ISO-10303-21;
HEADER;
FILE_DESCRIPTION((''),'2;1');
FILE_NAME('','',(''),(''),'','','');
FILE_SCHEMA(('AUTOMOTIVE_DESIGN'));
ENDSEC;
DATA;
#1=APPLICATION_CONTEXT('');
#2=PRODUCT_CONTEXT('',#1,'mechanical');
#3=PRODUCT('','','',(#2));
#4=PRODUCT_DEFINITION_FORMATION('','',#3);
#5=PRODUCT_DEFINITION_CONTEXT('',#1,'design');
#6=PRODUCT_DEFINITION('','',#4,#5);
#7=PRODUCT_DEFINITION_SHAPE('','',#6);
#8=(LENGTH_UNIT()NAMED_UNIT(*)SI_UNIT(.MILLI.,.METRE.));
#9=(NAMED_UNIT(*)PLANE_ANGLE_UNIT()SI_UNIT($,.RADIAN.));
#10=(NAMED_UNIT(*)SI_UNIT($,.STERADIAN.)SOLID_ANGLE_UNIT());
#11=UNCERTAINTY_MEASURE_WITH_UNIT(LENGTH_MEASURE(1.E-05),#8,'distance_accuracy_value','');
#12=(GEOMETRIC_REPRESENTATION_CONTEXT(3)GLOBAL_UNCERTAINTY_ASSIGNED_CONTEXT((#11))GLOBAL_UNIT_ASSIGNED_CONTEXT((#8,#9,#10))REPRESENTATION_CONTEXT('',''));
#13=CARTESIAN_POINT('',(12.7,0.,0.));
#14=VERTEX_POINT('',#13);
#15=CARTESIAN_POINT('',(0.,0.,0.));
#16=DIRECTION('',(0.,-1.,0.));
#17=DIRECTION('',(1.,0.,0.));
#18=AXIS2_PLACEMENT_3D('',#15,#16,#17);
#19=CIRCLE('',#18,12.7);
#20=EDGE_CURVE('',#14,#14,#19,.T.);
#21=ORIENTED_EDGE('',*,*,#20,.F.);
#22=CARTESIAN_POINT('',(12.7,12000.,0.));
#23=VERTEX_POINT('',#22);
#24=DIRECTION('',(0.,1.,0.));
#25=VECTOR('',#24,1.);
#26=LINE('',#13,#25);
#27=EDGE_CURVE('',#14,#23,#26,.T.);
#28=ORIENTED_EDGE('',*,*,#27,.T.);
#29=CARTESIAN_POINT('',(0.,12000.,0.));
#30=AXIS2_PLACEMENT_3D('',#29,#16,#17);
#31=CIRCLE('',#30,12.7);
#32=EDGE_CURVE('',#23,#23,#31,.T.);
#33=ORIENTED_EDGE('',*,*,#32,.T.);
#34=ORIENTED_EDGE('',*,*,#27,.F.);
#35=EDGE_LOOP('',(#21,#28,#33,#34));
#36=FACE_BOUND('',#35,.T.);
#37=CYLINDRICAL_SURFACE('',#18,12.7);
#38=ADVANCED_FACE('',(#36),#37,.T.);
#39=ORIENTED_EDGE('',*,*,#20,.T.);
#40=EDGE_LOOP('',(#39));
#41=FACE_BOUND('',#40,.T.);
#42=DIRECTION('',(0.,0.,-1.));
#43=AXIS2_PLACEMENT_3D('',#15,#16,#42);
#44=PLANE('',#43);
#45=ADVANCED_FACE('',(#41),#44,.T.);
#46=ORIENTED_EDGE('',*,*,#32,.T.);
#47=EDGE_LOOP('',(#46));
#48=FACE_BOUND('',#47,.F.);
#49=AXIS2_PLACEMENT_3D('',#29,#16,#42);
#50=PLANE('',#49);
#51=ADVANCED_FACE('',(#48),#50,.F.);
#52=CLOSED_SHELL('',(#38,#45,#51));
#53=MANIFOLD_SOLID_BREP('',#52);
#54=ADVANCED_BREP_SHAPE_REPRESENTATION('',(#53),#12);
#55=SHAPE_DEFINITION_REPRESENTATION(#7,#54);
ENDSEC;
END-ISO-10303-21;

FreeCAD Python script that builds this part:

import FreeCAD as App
import Part
import Sketcher

V = App.Vector
Q = App.Units.Quantity

doc = App.newDocument("Part")
body = doc.addObject("PartDesign::Body", "Body")

# Sketch on XZ plane
sketch1 = body.newObject("Sketcher::SketchObject", "Sketch")
sketch1.AttachmentSupport = (doc.getObject("XZ_Plane"), [""])
sketch1.MapMode = "FlatFace"
sketch1.addGeometry(Part.Circle(V(0, 0, 0), V(0, 0, 1), 13), False)
sketch1.addConstraint([
    Sketcher.Constraint("Coincident", 0, 3, -1, 1),
    Sketcher.Constraint("Diameter", 0, Q("25.4 mm")),
])
pad1 = body.newObject("PartDesign::Pad", "Pad")
pad1.Profile = sketch1
pad1.Length = 12000
pad1.Reversed = True

doc.recompute()
